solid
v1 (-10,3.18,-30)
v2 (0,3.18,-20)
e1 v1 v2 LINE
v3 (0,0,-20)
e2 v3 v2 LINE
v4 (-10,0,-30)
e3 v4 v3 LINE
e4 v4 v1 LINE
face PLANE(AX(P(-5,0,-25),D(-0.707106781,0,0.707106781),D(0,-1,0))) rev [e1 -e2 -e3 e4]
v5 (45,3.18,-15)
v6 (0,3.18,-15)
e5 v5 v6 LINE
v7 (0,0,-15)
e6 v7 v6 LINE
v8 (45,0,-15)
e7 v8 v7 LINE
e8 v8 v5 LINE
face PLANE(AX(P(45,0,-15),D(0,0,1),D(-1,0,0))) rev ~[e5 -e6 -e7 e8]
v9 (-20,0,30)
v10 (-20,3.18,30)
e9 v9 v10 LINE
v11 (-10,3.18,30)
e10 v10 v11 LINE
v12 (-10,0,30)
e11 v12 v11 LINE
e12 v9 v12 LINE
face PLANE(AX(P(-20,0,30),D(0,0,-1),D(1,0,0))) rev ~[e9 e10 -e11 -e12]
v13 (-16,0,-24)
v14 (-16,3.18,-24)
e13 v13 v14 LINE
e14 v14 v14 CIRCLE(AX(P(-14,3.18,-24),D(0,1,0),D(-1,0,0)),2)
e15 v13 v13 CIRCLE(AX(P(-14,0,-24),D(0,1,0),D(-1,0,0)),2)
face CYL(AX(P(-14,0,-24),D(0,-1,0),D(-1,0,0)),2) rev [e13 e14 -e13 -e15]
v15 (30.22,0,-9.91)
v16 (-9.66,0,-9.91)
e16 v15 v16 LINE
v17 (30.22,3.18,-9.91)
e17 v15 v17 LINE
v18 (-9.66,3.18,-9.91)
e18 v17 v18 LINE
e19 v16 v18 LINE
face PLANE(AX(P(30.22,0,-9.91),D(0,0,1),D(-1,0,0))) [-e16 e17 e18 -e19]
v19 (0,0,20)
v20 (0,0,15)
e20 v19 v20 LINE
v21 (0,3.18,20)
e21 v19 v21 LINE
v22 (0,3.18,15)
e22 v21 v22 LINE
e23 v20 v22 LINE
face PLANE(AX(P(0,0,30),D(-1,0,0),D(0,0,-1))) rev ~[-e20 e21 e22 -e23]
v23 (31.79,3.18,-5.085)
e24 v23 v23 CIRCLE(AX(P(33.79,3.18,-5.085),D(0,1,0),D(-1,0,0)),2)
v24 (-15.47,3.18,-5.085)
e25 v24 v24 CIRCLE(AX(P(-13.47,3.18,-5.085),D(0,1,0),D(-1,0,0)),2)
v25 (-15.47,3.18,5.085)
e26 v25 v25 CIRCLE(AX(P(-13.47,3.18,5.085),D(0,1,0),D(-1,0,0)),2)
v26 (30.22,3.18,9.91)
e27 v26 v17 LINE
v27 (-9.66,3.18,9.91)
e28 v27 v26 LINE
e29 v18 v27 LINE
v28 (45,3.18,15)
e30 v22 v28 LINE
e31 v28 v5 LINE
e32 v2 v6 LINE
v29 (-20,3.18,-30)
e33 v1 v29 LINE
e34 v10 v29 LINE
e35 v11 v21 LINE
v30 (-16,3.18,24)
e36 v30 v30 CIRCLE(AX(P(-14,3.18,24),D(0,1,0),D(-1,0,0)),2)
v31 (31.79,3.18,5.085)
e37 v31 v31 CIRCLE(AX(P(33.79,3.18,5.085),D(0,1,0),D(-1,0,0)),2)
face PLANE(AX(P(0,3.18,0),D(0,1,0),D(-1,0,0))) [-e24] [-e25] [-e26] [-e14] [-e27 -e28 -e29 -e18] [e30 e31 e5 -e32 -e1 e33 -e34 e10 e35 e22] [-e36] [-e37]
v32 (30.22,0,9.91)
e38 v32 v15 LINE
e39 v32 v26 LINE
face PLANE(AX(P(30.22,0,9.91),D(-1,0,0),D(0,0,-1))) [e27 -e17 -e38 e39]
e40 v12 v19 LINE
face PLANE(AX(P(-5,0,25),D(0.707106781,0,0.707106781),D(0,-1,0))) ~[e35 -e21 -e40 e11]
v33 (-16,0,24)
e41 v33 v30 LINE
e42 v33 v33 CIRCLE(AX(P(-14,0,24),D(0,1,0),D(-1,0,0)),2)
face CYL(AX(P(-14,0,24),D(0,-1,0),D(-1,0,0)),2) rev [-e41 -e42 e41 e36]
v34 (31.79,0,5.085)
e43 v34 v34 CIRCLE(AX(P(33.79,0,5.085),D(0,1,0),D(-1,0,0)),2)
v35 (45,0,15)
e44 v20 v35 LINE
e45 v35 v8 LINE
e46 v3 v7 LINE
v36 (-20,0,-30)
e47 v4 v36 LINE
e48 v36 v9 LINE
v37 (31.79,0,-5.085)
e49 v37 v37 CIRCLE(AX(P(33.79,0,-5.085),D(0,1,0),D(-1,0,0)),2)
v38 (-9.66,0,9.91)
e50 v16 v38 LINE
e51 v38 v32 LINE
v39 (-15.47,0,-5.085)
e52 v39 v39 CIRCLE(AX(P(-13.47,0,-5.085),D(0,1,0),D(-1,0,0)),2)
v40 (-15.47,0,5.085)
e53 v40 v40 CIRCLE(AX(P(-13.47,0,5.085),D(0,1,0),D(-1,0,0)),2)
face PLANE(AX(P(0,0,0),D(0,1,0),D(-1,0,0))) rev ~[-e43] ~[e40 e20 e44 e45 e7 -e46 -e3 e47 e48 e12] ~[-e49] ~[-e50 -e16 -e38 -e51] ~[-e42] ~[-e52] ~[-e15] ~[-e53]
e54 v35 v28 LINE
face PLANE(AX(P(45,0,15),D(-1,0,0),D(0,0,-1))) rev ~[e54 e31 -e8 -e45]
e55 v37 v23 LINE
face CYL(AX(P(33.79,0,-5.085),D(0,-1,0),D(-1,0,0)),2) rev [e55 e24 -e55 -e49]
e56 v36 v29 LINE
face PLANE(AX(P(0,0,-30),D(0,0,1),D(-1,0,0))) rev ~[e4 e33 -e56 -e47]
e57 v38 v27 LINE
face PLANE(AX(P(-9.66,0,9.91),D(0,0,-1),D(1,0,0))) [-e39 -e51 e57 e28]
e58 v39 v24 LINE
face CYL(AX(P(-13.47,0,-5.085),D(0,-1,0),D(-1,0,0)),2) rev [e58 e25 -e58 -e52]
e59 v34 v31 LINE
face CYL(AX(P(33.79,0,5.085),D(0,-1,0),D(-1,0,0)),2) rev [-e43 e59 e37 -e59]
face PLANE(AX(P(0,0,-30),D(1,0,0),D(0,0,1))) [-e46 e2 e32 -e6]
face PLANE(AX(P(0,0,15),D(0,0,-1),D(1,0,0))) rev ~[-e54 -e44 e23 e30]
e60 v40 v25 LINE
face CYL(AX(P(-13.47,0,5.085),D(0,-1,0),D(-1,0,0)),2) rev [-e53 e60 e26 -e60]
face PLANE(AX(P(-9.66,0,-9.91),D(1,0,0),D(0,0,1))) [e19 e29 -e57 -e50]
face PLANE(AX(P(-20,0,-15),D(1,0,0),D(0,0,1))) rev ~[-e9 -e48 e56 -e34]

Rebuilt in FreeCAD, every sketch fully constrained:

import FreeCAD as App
import Part
import Sketcher

V = App.Vector
Q = App.Units.Quantity


def edges_at(feature, points):
    """Names of the edges that pass closest to the given points."""
    edges = feature.Shape.Edges
    near = lambda p: min(range(len(edges)), key=lambda i: edges[i].distToShape(Part.Vertex(*p))[0])
    return sorted({f"Edge{near(p) + 1}" for p in points})


def add_polygon(sketch, points):
    """Adds a closed chain of lines whose ends are joined by coincident constraints."""
    first, n = sketch.GeometryCount, len(points)
    for a, b in zip(points, points[1:] + points[:1]):
        sketch.addGeometry(Part.LineSegment(App.Vector(*a, 0), App.Vector(*b, 0)), False)
    for i in range(n):
        sketch.addConstraint(Sketcher.Constraint("Coincident", first + i, 2, first + (i + 1) % n, 1))

doc = App.newDocument("Part")
body = doc.addObject("PartDesign::Body", "Body")

sketch1 = body.newObject("Sketcher::SketchObject", "Sketch")
sketch1.AttachmentSupport = (doc.getObject("XZ_Plane"), [""])
sketch1.MapMode = "FlatFace"
add_polygon(sketch1, [(-20, 30), (0, 30), (0, 15), (45, 15), (45, -15), (0, -15), (0, -30), (-20, -30)])
sketch1.addGeometry(Part.Circle(V(33.8, -5.1, 0), V(0, 0, 1), 2), False)
sketch1.addGeometry(Part.Circle(V(-13.5, -5.1, 0), V(0, 0, 1), 2), False)
sketch1.addGeometry(Part.Circle(V(33.8, 5.1, 0), V(0, 0, 1), 2), False)
add_polygon(sketch1, [(30.2, 9.9), (-9.7, 9.9), (-9.7, -9.9), (30.2, -9.9)])
sketch1.addGeometry(Part.Circle(V(-13.5, 5.1, 0), V(0, 0, 1), 2), False)
sketch1.addGeometry(Part.Circle(V(-14, -24, 0), V(0, 0, 1), 2), False)
sketch1.addGeometry(Part.Circle(V(-14, 24, 0), V(0, 0, 1), 2), False)
sketch1.addConstraint([
    Sketcher.Constraint("Horizontal", 0),
    Sketcher.Constraint("Vertical", 1),
    Sketcher.Constraint("Horizontal", 2),
    Sketcher.Constraint("Vertical", 3),
    Sketcher.Constraint("Horizontal", 4),
    Sketcher.Constraint("Vertical", 5),
    Sketcher.Constraint("Horizontal", 6),
    Sketcher.Constraint("Vertical", 7),
    Sketcher.Constraint("Horizontal", 11),
    Sketcher.Constraint("Vertical", 12),
    Sketcher.Constraint("Horizontal", 13),
    Sketcher.Constraint("Vertical", 14),
    Sketcher.Constraint("Equal", 8, 9),
    Sketcher.Constraint("Equal", 9, 10),
    Sketcher.Constraint("Equal", 10, 15),
    Sketcher.Constraint("Equal", 15, 16),
    Sketcher.Constraint("Equal", 16, 17),
    Sketcher.Constraint("Symmetric", 1, 2, 4, 2, -1, 1),
    Sketcher.Constraint("Symmetric", 8, 3, 10, 3, -1),
    Sketcher.Constraint("Symmetric", 9, 3, 15, 3, -1),
    Sketcher.Constraint("Symmetric", 16, 3, 17, 3, -1),
    Sketcher.Constraint("Symmetric", 0, 2, 5, 2, -1),
    Sketcher.Constraint("Horizontal", 8, 3, 9, 3),
    Sketcher.Constraint("Diameter", 8, Q("4 mm")),
    Sketcher.Constraint("DistanceX", 0, 1, 0, 2, Q("20 mm")),
    Sketcher.Constraint("DistanceY", 1, 2, 1, 1, Q("15 mm")),
    Sketcher.Constraint("DistanceY", 3, 2, 3, 1, Q("30 mm")),
    Sketcher.Constraint("DistanceY", 17, 3, 0, 2, Q("6 mm")),
    Sketcher.Constraint("DistanceX", 6, 2, 16, 3, Q("6 mm")),
    Sketcher.Constraint("DistanceX", 11, 2, 11, 1, Q("39.88 mm")),
    Sketcher.Constraint("DistanceY", 12, 2, 12, 1, Q("19.82 mm")),
    Sketcher.Constraint("DistanceX", 2, 1, 2, 2, Q("45 mm")),
    Sketcher.Constraint("DistanceX", -1, 1, 8, 3, Q("33.79 mm")),
    Sketcher.Constraint("DistanceX", 9, 3, -1, 1, Q("13.47 mm")),
    Sketcher.Constraint("DistanceX", 11, 2, -1, 1, Q("9.66 mm")),
    Sketcher.Constraint("DistanceY", -1, 1, 11, 2, Q("9.91 mm")),
    Sketcher.Constraint("DistanceY", 8, 3, 10, 3, Q("10.17 mm")),
])
pad1 = body.newObject("PartDesign::Pad", "Pad")
pad1.Profile = sketch1
pad1.Length = 3.18
pad1.Reversed = True
doc.recompute()

chamfer = body.newObject("PartDesign::Chamfer", "Chamfer")
chamfer.Base = (pad1, edges_at(pad1, [(0, 1.59, -30)]))
chamfer.Size = 10
doc.recompute()

chamfer2 = body.newObject("PartDesign::Chamfer", "Chamfer001")
chamfer2.Base = (chamfer, edges_at(chamfer, [(0, 1.59, 30)]))
chamfer2.Size = 10

doc.recompute()
